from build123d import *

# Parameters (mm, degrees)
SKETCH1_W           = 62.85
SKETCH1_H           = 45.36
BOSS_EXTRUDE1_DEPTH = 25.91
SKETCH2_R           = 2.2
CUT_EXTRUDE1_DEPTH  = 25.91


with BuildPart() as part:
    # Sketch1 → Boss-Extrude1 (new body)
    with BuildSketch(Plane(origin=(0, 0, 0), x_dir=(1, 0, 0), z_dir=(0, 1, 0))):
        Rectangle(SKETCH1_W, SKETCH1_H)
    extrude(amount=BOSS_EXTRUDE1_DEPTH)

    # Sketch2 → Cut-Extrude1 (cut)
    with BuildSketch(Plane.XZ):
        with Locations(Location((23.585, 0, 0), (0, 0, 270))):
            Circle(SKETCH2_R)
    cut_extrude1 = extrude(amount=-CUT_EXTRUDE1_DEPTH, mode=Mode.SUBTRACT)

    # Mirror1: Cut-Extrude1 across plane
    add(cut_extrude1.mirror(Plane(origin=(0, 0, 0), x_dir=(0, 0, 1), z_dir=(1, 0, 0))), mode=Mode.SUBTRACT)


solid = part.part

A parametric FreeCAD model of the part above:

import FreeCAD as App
import Part
import Sketcher
Q = App.Units.Quantity


def add_polygon(sketch, points):
    """Adds a closed chain of lines whose ends are joined by coincident constraints."""
    first, n = sketch.GeometryCount, len(points)
    for a, b in zip(points, points[1:] + points[:1]):
        sketch.addGeometry(Part.LineSegment(App.Vector(*a, 0), App.Vector(*b, 0)), False)
    for i in range(n):
        sketch.addConstraint(Sketcher.Constraint("Coincident", first + i, 2, first + (i + 1) % n, 1))

doc = App.newDocument("Part")
body = doc.addObject("PartDesign::Body", "Body")

sketch1 = doc.addObject("Sketcher::SketchObject", "Sketch")
body.addObject(sketch1)
sketch1.AttachmentSupport = (doc.XZ_Plane, [""])
sketch1.MapMode = "FlatFace"
add_polygon(sketch1, [(-31, -23), (-31, 23), (31, 23), (31, -23)])
sketch1.addConstraint([
    Sketcher.Constraint("Vertical", 0),
    Sketcher.Constraint("Horizontal", 1),
    Sketcher.Constraint("Vertical", 2),
    Sketcher.Constraint("Horizontal", 3),
    Sketcher.Constraint("Symmetric", 0, 2, 2, 2, -1, 1),
    Sketcher.Constraint("DistanceX", 1, 1, 1, 2, Q("62.85 mm")),
    Sketcher.Constraint("DistanceY", 0, 1, 0, 2, Q("45.36 mm")),
])
pad1 = doc.addObject("PartDesign::Pad", "Pad")
body.addObject(pad1)
pad1.Profile = sketch1
pad1.Length = 25.91
pad1.Reversed = True

sketch2 = doc.addObject("Sketcher::SketchObject", "Sketch001")
body.addObject(sketch2)
sketch2.AttachmentSupport = (doc.XZ_Plane, [""])
sketch2.MapMode = "FlatFace"
sketch2.addGeometry(Part.Circle(App.Vector(23.6, 0, 0), App.Vector(0, 0, 1), 2.2), False)
sketch2.addConstraint([
    Sketcher.Constraint("PointOnObject", 0, 3, -1),
    Sketcher.Constraint("Diameter", 0, Q("4.4 mm")),
    Sketcher.Constraint("DistanceX", -1, 1, 0, 3, Q("23.585 mm")),
])
pocket1 = doc.addObject("PartDesign::Pocket", "Pocket")
body.addObject(pocket1)
pocket1.Profile = sketch2
pocket1.Length = 25.91
doc.recompute()

mirrored = doc.addObject("PartDesign::Mirrored", "Mirrored")
body.addObject(mirrored)
mirrored.Originals = [pocket1]
mirrored.MirrorPlane = (doc.YZ_Plane, [""])
body.Tip = mirrored

doc.recompute()
